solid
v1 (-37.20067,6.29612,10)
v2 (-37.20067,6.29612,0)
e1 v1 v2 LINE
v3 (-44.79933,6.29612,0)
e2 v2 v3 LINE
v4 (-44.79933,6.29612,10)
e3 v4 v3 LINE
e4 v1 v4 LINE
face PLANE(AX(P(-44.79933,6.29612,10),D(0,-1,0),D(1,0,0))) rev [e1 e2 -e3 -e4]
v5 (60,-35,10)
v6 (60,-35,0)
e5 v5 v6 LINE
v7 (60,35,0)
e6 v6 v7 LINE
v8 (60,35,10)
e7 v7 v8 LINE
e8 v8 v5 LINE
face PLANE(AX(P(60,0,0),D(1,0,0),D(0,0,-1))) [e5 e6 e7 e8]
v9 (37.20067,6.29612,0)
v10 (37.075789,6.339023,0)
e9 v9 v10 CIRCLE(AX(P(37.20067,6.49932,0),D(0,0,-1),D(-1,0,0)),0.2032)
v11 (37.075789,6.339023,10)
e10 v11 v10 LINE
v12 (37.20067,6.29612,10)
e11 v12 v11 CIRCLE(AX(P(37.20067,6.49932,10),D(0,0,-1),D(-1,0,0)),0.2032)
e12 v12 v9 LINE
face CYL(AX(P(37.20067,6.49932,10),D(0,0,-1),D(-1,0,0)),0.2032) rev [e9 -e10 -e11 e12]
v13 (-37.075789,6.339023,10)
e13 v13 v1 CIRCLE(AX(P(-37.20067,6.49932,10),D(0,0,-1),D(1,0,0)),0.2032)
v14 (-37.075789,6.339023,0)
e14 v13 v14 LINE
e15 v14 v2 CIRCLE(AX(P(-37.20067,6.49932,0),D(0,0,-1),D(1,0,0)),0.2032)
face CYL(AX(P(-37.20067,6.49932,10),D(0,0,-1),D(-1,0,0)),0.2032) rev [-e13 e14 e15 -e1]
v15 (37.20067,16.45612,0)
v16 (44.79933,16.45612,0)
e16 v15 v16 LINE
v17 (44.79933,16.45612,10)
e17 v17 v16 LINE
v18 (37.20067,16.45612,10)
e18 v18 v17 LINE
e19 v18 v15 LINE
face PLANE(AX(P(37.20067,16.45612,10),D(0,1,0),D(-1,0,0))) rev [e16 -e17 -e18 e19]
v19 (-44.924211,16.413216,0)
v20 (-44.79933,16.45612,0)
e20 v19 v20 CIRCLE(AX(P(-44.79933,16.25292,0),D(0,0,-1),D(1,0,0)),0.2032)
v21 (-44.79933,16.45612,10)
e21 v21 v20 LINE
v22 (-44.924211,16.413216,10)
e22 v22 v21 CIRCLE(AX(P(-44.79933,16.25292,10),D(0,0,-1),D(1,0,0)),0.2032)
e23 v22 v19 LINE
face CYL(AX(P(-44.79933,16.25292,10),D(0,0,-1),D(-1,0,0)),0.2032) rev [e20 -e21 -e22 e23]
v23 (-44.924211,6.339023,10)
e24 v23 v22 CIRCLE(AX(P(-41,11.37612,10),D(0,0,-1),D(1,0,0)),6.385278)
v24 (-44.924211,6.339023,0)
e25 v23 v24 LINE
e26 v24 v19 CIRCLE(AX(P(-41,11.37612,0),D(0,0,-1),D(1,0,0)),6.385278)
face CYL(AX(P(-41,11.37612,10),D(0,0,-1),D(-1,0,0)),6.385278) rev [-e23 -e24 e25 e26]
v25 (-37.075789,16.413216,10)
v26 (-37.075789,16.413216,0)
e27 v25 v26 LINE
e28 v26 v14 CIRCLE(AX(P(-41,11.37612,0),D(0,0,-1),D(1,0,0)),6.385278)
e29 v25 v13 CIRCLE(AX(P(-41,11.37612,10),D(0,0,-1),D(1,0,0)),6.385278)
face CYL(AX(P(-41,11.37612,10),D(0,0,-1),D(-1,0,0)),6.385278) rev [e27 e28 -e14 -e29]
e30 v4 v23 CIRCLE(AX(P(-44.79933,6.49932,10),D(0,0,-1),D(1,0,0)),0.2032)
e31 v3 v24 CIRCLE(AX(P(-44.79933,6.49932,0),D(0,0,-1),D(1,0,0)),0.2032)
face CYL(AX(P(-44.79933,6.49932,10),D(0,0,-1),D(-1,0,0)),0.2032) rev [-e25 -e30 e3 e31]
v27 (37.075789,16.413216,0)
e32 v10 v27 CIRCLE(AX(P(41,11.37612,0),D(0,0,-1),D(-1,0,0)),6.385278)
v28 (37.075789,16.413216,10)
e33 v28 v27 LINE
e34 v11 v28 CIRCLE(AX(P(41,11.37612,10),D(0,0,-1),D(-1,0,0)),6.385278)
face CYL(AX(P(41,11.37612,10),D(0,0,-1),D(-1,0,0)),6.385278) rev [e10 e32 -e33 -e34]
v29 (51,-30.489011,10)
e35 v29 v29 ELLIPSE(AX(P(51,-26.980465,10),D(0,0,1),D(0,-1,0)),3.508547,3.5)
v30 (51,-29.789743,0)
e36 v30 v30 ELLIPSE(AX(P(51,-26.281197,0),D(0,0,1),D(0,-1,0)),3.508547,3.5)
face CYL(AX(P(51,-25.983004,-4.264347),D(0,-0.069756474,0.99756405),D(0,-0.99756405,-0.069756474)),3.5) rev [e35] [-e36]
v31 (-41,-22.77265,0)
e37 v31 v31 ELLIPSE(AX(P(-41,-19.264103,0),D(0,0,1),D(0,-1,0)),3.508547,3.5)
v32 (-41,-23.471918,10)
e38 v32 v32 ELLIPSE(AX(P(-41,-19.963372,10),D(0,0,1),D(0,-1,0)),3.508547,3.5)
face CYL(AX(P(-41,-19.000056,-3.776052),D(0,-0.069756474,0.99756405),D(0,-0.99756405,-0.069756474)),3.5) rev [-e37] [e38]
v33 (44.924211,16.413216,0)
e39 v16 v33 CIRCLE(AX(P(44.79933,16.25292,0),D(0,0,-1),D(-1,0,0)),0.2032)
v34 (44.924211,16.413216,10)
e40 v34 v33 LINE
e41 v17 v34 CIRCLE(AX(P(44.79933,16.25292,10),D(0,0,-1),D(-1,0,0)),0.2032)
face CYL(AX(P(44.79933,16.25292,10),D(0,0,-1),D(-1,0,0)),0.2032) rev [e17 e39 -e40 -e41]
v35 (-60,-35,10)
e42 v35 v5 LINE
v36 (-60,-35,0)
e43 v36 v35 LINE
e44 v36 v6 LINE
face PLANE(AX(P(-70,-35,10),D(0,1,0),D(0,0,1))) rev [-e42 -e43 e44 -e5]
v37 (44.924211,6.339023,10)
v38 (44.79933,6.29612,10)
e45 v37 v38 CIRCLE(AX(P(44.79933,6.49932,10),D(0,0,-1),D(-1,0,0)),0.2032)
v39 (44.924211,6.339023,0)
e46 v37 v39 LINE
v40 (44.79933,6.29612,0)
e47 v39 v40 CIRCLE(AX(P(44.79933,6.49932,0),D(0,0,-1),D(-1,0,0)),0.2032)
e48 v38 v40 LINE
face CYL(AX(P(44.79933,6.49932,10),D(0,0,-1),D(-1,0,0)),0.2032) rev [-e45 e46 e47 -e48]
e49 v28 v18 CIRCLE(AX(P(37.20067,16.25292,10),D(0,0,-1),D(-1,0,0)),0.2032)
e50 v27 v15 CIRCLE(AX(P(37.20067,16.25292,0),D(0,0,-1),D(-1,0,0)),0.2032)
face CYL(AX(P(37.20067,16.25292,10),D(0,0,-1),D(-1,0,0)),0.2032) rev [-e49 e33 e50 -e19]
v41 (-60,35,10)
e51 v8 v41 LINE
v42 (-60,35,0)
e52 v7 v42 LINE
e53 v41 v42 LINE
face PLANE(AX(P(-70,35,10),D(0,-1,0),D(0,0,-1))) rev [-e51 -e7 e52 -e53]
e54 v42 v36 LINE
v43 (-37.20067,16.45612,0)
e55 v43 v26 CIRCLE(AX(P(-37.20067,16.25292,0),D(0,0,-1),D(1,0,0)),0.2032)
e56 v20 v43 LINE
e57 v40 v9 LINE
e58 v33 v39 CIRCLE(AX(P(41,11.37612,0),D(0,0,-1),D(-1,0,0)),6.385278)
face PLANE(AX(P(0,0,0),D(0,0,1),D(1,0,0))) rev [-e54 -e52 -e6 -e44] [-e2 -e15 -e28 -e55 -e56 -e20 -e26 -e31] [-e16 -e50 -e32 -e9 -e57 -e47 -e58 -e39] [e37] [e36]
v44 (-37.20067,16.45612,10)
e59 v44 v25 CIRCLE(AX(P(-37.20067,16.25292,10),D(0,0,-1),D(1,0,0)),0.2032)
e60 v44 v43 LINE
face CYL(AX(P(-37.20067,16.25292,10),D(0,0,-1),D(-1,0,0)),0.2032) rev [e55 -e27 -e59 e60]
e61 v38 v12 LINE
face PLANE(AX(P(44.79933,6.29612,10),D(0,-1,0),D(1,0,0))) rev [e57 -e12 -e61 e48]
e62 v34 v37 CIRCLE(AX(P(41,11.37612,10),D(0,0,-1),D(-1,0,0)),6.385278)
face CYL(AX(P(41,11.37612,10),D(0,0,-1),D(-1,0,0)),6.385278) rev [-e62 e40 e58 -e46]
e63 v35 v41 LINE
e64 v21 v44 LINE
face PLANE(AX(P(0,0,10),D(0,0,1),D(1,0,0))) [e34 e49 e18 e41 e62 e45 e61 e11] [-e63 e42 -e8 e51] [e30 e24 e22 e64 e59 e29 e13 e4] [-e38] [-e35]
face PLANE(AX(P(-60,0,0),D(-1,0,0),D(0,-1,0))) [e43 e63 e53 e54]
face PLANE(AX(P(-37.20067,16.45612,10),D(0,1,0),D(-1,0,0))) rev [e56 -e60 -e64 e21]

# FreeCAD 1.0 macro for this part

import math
import FreeCAD as App
import Part
import Sketcher

V = App.Vector

doc = App.newDocument("Part")
body = doc.addObject("PartDesign::Body", "Body")

sketch1 = body.newObject("Sketcher::SketchObject", "Sketch")
sketch1.AttachmentSupport = (doc.getObject("XY_Plane"), [""])
sketch1.MapMode = "FlatFace"
sketch1.addGeometry([
    Part.LineSegment(V(-70, 35, 0), V(-70, -35, 0)),
    Part.LineSegment(V(-70, -35, 0), V(70, -35, 0)),
    Part.LineSegment(V(70, -35, 0), V(70, 35, 0)),
    Part.LineSegment(V(70, 35, 0), V(-70, 35, 0)),
], False)
sketch1.addConstraint([
    Sketcher.Constraint("Coincident", 0, 2, 1, 1),
    Sketcher.Constraint("Coincident", 1, 2, 2, 1),
    Sketcher.Constraint("Coincident", 2, 2, 3, 1),
    Sketcher.Constraint("Coincident", 3, 2, 0, 1),
    Sketcher.Constraint("Vertical", 0),
    Sketcher.Constraint("Horizontal", 1),
    Sketcher.Constraint("Vertical", 2),
    Sketcher.Constraint("Horizontal", 3),
    Sketcher.Constraint("Symmetric", 0, 2, 2, 2, -1, 1),
    Sketcher.Constraint("DistanceX", 1, 1, 1, 2, 140.0),
    Sketcher.Constraint("DistanceY", 0, 2, 0, 1, 70.0),
])
pad1 = body.newObject("PartDesign::Pad", "Pad")
pad1.Profile = sketch1
pad1.Length = 10

sketch2 = body.newObject("Sketcher::SketchObject", "Sketch001")
sketch2.AttachmentSupport = (doc.getObject("XY_Plane"), [""])
sketch2.MapMode = "FlatFace"
sketch2.addGeometry([
    Part.LineSegment(V(44.8, 6.3, 0), V(37.2, 6.3, 0)),
    Part.ArcOfCircle(Part.Circle(V(37.2, 6.5, 0), V(0, 0, 1), 0.2), math.radians(-128), math.radians(-90)),
    Part.ArcOfCircle(Part.Circle(V(41, 11.38, 0), V(0, 0, 1), 6.39), math.radians(128), math.radians(232)),
    Part.ArcOfCircle(Part.Circle(V(37.2, 16.25, 0), V(0, 0, 1), 0.2), math.radians(90), math.radians(128)),
    Part.LineSegment(V(37.2, 16.46, 0), V(44.8, 16.46, 0)),
    Part.ArcOfCircle(Part.Circle(V(44.8, 16.25, 0), V(0, 0, 1), 0.2), math.radians(52), math.radians(90)),
    Part.ArcOfCircle(Part.Circle(V(41, 11.38, 0), V(0, 0, 1), 6.39), math.radians(-52), math.radians(52)),
    Part.ArcOfCircle(Part.Circle(V(44.8, 6.5, 0), V(0, 0, 1), 0.2), math.radians(-90), math.radians(-52)),
    Part.LineSegment(V(-44.8, 16.46, 0), V(-37.2, 16.46, 0)),
    Part.ArcOfCircle(Part.Circle(V(-37.2, 16.25, 0), V(0, 0, 1), 0.2), math.radians(52), math.radians(90)),
    Part.ArcOfCircle(Part.Circle(V(-41, 11.38, 0), V(0, 0, 1), 6.39), math.radians(-52), math.radians(52)),
    Part.ArcOfCircle(Part.Circle(V(-37.2, 6.5, 0), V(0, 0, 1), 0.2), math.radians(-90), math.radians(-52)),
    Part.LineSegment(V(-37.2, 6.3, 0), V(-44.8, 6.3, 0)),
    Part.ArcOfCircle(Part.Circle(V(-44.8, 6.5, 0), V(0, 0, 1), 0.2), math.radians(-128), math.radians(-90)),
    Part.ArcOfCircle(Part.Circle(V(-41, 11.38, 0), V(0, 0, 1), 6.39), math.radians(128), math.radians(232)),
    Part.ArcOfCircle(Part.Circle(V(-44.8, 16.25, 0), V(0, 0, 1), 0.2), math.radians(90), math.radians(128)),
], False)
sketch2.addConstraint([
    Sketcher.Constraint("Tangent", 0, 2, 1, 2),
    Sketcher.Constraint("Tangent", 1, 1, 2, 2),
    Sketcher.Constraint("Tangent", 2, 1, 3, 2),
    Sketcher.Constraint("Tangent", 3, 1, 4, 1),
    Sketcher.Constraint("Tangent", 4, 2, 5, 2),
    Sketcher.Constraint("Tangent", 5, 1, 6, 2),
    Sketcher.Constraint("Tangent", 6, 1, 7, 2),
    Sketcher.Constraint("Tangent", 7, 1, 0, 1),
    Sketcher.Constraint("Tangent", 8, 2, 9, 2),
    Sketcher.Constraint("Tangent", 9, 1, 10, 2),
    Sketcher.Constraint("Tangent", 10, 1, 11, 2),
    Sketcher.Constraint("Tangent", 11, 1, 12, 1),
    Sketcher.Constraint("Tangent", 12, 2, 13, 2),
    Sketcher.Constraint("Tangent", 13, 1, 14, 2),
    Sketcher.Constraint("Tangent", 14, 1, 15, 2),
    Sketcher.Constraint("Tangent", 15, 1, 8, 1),
    Sketcher.Constraint("Horizontal", 0),
    Sketcher.Constraint("Horizontal", 4),
    Sketcher.Constraint("Horizontal", 8),
    Sketcher.Constraint("Horizontal", 12),
    Sketcher.Constraint("Coincident", 6, 3, 2, 3),
    Sketcher.Constraint("Coincident", 14, 3, 10, 3),
    Sketcher.Constraint("Equal", 1, 3),
    Sketcher.Constraint("Equal", 3, 5),
    Sketcher.Constraint("Equal", 2, 6),
    Sketcher.Constraint("Equal", 5, 7),
    Sketcher.Constraint("Equal", 7, 9),
    Sketcher.Constraint("Equal", 6, 10),
    Sketcher.Constraint("Equal", 9, 11),
    Sketcher.Constraint("Equal", 11, 13),
    Sketcher.Constraint("Equal", 10, 14),
    Sketcher.Constraint("Equal", 13, 15),
    Sketcher.Constraint("Symmetric", 3, 3, 9, 3, -2),
    Sketcher.Constraint("Symmetric", 1, 3, 11, 3, -2),
    Sketcher.Constraint("Vertical", 1, 3, 3, 3),
    Sketcher.Constraint("DistanceX", -1, 1, 2, 3, 41.0),
    Sketcher.Constraint("Radius", 1, 0.2032),
    Sketcher.Constraint("DistanceY", 0, 2, 2, 3, 5.08),
    Sketcher.Constraint("Radius", 2, 6.385278),
    Sketcher.Constraint("DistanceY", -1, 1, 1, 3, 6.49932),
])
pocket1 = body.newObject("PartDesign::Pocket", "Pocket")
pocket1.Profile = sketch2
pocket1.Type = "ThroughAll"
pocket1.Reversed = True

sketch3 = body.newObject("Sketcher::SketchObject", "Sketch002")
sketch3.AttachmentSupport = (doc.getObject("YZ_Plane"), [""])
sketch3.MapMode = "FlatFace"
sketch3.AttachmentOffset = App.Placement(V(0, 0, 70), App.Rotation())
sketch3.addGeometry([
    Part.LineSegment(V(35, 10, 0), V(-35, 10, 0)),
    Part.LineSegment(V(-35, 10, 0), V(-35, 0, 0)),
    Part.LineSegment(V(-35, 0, 0), V(35, 0, 0)),
    Part.LineSegment(V(35, 0, 0), V(35, 10, 0)),
], False)
sketch3.addConstraint([
    Sketcher.Constraint("Coincident", 0, 2, 1, 1),
    Sketcher.Constraint("Coincident", 1, 2, 2, 1),
    Sketcher.Constraint("Coincident", 2, 2, 3, 1),
    Sketcher.Constraint("Coincident", 3, 2, 0, 1),
    Sketcher.Constraint("Horizontal", 0),
    Sketcher.Constraint("Vertical", 1),
    Sketcher.Constraint("Horizontal", 2),
    Sketcher.Constraint("Vertical", 3),
    Sketcher.Constraint("Symmetric", 1, 2, 2, 2, -1, 1),
    Sketcher.Constraint("DistanceX", 0, 2, 0, 1, 70.0),
    Sketcher.Constraint("DistanceY", 1, 2, 1, 1, 10.0),
])
pocket2 = body.newObject("PartDesign::Pocket", "Pocket001")
pocket2.Profile = sketch3
pocket2.Length = 10

sketch4 = body.newObject("Sketcher::SketchObject", "Sketch003")
sketch4.AttachmentSupport = (doc.getObject("YZ_Plane"), [""])
sketch4.MapMode = "FlatFace"
sketch4.AttachmentOffset = App.Placement(V(0, 0, -70), App.Rotation())
sketch4.addGeometry([
    Part.LineSegment(V(35, 0, 0), V(-35, 0, 0)),
    Part.LineSegment(V(-35, 0, 0), V(-35, 10, 0)),
    Part.LineSegment(V(-35, 10, 0), V(35, 10, 0)),
    Part.LineSegment(V(35, 10, 0), V(35, 0, 0)),
], False)
sketch4.addConstraint([
    Sketcher.Constraint("Coincident", 0, 2, 1, 1),
    Sketcher.Constraint("Coincident", 1, 2, 2, 1),
    Sketcher.Constraint("Coincident", 2, 2, 3, 1),
    Sketcher.Constraint("Coincident", 3, 2, 0, 1),
    Sketcher.Constraint("Horizontal", 0),
    Sketcher.Constraint("Vertical", 1),
    Sketcher.Constraint("Horizontal", 2),
    Sketcher.Constraint("Vertical", 3),
    Sketcher.Constraint("Symmetric", 0, 2, 3, 2, -1, 1),
    Sketcher.Constraint("DistanceX", 0, 2, 0, 1, 70.0),
    Sketcher.Constraint("DistanceY", 1, 1, 1, 2, 10.0),
])
pocket3 = body.newObject("PartDesign::Pocket", "Pocket002")
pocket3.Profile = sketch4
pocket3.Length = 10
pocket3.Reversed = True

sketch5 = body.newObject("Sketcher::SketchObject", "Sketch004")
sketch5.Placement = App.Placement(V(0, -0.866174, 12.38687), App.Rotation(V(1, 0, 0), V(0, 0.99756405, 0.069756474), V(0, -0.069756474, 0.99756405), "ZXY"))
sketch5.addGeometry([
    Part.Circle(V(51, -26.2, 0), V(0, 0, 1), 3.5),
    Part.Circle(V(-41, -19.2, 0), V(0, 0, 1), 3.5),
], False)
sketch5.addConstraint([
    Sketcher.Constraint("Equal", 0, 1),
    Sketcher.Constraint("Diameter", 0, 7.0),
    Sketcher.Constraint("DistanceX", -1, 1, 0, 3, 51.0),
    Sketcher.Constraint("DistanceX", 1, 3, -1, 1, 41.0),
    Sketcher.Constraint("DistanceY", 0, 3, 1, 3, 7.0),
    Sketcher.Constraint("DistanceY", 0, 3, -1, 1, 26.217177),
])
pocket4 = body.newObject("PartDesign::Pocket", "Pocket003")
pocket4.Profile = sketch5
pocket4.Type = "ThroughAll"

doc.recompute()
